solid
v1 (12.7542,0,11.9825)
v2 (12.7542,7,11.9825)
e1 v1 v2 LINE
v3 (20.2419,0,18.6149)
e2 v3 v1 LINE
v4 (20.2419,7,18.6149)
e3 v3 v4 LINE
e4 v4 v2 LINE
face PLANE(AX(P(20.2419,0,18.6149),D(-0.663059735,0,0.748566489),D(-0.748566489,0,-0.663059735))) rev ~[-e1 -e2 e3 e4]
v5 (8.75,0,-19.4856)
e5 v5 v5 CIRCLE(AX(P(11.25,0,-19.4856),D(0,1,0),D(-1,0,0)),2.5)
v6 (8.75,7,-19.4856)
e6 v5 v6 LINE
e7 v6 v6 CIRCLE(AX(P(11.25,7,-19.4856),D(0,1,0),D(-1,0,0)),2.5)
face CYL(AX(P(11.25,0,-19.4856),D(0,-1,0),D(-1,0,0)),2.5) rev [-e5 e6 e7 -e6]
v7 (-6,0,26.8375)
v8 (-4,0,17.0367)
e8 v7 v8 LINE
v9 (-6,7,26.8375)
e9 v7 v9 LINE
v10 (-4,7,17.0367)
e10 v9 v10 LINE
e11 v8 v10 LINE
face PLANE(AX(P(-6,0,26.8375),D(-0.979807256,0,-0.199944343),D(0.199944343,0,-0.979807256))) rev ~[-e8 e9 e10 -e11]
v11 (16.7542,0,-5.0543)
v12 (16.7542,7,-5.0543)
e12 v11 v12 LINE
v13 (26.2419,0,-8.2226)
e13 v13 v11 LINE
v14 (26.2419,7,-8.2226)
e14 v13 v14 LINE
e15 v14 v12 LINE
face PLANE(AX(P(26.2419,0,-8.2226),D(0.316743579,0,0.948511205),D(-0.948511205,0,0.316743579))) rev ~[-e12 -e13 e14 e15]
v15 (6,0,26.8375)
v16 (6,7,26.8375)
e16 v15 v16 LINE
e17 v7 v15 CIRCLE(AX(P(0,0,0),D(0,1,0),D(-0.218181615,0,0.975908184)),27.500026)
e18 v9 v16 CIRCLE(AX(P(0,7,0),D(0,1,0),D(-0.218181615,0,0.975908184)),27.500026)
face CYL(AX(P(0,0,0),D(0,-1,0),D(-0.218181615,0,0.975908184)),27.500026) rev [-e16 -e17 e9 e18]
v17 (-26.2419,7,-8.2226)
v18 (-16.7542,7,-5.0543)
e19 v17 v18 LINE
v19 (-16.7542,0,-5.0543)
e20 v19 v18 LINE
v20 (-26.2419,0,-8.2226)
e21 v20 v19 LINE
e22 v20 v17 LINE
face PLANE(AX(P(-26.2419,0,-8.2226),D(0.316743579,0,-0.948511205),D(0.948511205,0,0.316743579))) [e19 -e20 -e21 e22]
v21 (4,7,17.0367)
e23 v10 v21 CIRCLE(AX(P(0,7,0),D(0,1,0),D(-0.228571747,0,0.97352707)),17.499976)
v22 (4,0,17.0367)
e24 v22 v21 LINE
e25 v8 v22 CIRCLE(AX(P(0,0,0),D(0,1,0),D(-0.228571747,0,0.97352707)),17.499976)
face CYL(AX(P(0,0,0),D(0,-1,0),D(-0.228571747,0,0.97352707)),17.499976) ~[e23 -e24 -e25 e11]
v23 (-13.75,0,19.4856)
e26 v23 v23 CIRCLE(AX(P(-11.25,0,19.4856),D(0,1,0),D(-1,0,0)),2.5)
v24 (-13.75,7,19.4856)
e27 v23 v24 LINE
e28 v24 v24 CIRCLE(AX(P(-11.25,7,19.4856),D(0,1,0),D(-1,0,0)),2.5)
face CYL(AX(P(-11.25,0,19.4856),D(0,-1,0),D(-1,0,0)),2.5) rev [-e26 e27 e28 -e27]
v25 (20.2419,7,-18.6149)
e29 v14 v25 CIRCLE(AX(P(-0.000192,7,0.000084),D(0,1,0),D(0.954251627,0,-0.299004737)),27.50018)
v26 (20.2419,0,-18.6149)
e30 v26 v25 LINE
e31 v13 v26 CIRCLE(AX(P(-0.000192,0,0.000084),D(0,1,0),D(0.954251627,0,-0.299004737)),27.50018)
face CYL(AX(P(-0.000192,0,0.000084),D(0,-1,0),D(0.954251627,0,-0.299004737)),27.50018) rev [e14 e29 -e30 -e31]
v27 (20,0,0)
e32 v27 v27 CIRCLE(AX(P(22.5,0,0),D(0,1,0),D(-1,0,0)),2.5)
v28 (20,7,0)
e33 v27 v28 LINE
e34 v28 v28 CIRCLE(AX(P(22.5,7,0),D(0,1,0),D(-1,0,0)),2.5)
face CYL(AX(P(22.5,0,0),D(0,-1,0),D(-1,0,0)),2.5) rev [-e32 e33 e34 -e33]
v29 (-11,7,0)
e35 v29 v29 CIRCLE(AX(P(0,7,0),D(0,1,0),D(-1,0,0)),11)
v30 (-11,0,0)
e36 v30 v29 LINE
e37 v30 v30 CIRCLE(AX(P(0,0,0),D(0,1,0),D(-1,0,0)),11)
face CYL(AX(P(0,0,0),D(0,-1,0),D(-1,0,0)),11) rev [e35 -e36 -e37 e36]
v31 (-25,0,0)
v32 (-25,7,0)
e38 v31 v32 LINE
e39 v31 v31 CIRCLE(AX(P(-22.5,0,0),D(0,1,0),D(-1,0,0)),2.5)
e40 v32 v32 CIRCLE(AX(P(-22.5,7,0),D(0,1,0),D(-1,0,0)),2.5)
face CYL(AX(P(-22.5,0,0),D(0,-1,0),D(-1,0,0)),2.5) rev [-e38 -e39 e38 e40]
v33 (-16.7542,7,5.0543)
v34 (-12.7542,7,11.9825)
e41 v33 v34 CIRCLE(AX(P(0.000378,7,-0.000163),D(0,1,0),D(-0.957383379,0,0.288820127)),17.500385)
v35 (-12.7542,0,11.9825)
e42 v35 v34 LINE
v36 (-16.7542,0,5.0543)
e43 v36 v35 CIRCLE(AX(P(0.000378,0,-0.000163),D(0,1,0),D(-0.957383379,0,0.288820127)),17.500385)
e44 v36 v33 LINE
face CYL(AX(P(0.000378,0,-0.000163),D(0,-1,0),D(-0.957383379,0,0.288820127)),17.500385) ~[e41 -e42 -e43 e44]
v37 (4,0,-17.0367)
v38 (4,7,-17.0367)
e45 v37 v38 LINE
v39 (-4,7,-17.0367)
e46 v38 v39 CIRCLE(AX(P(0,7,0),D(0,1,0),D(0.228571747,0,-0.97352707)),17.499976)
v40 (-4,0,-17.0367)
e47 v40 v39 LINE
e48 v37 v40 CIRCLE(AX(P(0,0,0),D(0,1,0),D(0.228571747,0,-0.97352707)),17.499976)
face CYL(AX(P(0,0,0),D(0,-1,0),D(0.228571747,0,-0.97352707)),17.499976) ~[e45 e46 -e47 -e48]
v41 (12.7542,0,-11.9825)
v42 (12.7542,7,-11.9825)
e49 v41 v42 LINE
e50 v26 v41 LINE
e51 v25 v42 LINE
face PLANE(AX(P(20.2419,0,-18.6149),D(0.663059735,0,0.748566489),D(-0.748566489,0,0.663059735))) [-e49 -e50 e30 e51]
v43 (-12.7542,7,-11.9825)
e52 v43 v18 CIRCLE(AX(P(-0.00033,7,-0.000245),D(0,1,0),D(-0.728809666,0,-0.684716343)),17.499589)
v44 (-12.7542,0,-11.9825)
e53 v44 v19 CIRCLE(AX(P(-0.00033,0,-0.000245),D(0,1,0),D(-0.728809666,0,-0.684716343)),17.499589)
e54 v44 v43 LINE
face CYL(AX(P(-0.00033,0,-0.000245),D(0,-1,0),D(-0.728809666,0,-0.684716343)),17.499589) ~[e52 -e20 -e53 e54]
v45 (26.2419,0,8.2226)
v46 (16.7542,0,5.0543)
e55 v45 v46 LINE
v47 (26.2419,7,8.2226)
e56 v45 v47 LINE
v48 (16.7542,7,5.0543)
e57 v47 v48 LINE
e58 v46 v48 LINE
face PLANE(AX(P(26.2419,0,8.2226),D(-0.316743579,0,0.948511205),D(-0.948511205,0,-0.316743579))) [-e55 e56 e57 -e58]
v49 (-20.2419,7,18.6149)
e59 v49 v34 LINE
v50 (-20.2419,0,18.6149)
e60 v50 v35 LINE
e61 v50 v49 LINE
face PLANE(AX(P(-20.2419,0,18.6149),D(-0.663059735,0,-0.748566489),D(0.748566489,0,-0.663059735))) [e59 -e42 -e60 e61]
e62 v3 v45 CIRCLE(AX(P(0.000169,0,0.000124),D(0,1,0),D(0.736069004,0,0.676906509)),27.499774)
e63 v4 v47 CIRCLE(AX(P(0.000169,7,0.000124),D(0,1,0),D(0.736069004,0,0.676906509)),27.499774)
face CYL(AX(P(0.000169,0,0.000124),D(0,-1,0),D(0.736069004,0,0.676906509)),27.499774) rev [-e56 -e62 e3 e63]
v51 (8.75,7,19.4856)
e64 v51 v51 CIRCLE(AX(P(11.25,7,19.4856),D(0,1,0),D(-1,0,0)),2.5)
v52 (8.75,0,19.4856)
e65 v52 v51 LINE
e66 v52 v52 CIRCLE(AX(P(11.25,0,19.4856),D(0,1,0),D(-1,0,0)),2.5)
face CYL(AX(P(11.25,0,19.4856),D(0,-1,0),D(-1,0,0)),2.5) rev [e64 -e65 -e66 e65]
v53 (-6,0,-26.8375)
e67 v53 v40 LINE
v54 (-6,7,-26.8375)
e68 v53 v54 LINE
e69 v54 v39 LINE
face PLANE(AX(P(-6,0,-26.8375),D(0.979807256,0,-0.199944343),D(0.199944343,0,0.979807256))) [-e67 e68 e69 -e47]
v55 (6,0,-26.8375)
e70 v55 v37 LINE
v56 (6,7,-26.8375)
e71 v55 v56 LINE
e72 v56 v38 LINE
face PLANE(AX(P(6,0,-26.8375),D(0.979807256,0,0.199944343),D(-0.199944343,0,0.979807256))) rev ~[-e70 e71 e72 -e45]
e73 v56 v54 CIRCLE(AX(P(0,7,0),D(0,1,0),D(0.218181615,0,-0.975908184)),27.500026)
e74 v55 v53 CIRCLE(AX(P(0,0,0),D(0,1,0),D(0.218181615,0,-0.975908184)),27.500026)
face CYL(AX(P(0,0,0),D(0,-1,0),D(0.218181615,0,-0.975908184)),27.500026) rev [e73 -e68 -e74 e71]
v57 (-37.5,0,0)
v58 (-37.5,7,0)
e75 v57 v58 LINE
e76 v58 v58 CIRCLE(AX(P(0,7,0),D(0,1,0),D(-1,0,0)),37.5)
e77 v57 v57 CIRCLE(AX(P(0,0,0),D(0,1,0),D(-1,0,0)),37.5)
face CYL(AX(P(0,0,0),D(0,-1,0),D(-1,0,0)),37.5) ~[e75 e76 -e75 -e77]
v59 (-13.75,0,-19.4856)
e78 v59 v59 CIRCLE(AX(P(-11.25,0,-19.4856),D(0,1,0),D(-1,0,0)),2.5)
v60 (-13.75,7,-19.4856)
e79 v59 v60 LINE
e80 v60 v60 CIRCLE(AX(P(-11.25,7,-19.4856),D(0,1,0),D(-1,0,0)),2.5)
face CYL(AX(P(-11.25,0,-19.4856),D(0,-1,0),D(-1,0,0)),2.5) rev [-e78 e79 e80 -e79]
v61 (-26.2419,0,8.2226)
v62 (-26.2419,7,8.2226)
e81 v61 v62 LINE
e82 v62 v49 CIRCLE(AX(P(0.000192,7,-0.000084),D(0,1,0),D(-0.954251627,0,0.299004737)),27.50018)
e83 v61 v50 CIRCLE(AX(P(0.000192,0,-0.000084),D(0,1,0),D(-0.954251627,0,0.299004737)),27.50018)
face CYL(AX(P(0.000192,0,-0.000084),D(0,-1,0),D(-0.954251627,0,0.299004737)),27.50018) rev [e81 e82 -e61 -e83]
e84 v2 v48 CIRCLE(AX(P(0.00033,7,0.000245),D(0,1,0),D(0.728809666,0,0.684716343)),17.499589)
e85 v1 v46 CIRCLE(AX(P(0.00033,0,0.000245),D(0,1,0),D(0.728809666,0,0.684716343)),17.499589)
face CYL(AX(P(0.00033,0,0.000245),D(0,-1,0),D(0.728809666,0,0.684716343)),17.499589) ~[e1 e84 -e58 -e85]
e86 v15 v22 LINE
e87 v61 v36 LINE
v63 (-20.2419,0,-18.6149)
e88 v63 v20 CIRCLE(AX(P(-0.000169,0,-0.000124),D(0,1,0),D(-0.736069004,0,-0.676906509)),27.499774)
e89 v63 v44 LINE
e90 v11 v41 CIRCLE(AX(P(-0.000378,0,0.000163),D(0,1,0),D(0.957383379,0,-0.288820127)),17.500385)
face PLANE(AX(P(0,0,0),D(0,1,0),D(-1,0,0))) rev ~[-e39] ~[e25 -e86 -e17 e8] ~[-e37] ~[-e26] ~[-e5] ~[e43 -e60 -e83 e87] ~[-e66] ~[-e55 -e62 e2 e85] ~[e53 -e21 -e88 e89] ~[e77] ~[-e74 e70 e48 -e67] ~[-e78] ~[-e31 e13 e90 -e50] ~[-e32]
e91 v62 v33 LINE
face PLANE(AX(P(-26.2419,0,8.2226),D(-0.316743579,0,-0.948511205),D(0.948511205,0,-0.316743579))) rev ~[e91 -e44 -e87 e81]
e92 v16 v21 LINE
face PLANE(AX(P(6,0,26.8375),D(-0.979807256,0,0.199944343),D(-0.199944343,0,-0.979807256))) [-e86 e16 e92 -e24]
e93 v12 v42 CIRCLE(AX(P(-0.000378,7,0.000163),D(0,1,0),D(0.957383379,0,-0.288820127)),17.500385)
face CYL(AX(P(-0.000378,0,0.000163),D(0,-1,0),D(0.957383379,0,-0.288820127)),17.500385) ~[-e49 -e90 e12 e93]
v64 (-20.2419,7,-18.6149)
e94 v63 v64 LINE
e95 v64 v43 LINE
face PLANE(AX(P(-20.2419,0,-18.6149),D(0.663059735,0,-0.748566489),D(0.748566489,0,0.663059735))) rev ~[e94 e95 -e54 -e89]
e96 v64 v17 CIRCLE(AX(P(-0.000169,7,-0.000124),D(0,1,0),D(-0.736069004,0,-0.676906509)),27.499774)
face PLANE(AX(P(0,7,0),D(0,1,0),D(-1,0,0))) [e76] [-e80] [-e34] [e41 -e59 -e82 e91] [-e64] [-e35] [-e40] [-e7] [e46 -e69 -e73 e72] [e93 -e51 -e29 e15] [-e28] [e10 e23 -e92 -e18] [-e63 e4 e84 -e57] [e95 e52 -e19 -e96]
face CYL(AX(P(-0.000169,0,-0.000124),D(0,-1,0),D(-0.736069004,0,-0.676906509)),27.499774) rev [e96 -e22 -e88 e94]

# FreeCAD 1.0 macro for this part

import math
import FreeCAD as App
import Part
import Sketcher

doc = App.newDocument("Part")
body = doc.addObject("PartDesign::Body", "Body")

# Sketch on XZ plane
sketch1 = body.newObject("Sketcher::SketchObject", "Sketch")
sketch1.AttachmentSupport = (doc.getObject("XZ_Plane"), [""])
sketch1.MapMode = "FlatFace"
sketch1.addGeometry([
    Part.Circle(App.Vector(0, 0, 0), App.Vector(0, 0, 1), 37.5),  # 0
    Part.Circle(App.Vector(11.25, -19.4856, 0), App.Vector(0, 0, 1), 2.5),  # 1
    Part.ArcOfCircle(Part.Circle(App.Vector(0, 0, 0), App.Vector(0, 0, 1), 27.500026), math.radians(-42.602329), math.radians(-17.397787)),  # 2
    Part.LineSegment(App.Vector(26.2419, -8.2226, 0), App.Vector(16.7542, -5.0543, 0)),  # 3
    Part.ArcOfCircle(Part.Circle(App.Vector(0, 0, 0), App.Vector(0, 0, 1), 17.5), math.radians(-43.213148), math.radians(-16.787177)),  # 4
    Part.LineSegment(App.Vector(12.7542, -11.9825, 0), App.Vector(20.2419, -18.6149, 0)),  # 5
    Part.ArcOfCircle(Part.Circle(App.Vector(0, 0, 0), App.Vector(0, 0, 1), 27.500026), math.radians(-102.602253), math.radians(-77.397747)),  # 6
    Part.LineSegment(App.Vector(6, -26.8375, 0), App.Vector(4, -17.0367, 0)),  # 7
    Part.ArcOfCircle(Part.Circle(App.Vector(0, 0, 0), App.Vector(0, 0, 1), 17.499976), math.radians(-103.212999), math.radians(-76.787001)),  # 8
    Part.LineSegment(App.Vector(-4, -17.0367, 0), App.Vector(-6, -26.8375, 0)),  # 9
    Part.Circle(App.Vector(-11.25, -19.4856, 0), App.Vector(0, 0, 1), 2.5),  # 10
    Part.ArcOfCircle(Part.Circle(App.Vector(0, 0, 0), App.Vector(0, 0, 1), 27.499972), math.radians(-162.602213), math.radians(-137.397671)),  # 11
    Part.LineSegment(App.Vector(-20.2419, -18.6149, 0), App.Vector(-12.7542, -11.9825, 0)),  # 12
    Part.ArcOfCircle(Part.Circle(App.Vector(0, 0, 0), App.Vector(0, 0, 1), 17.499976), math.radians(-163.212823), math.radians(-136.786852)),  # 13
    Part.LineSegment(App.Vector(-16.7542, -5.0543, 0), App.Vector(-26.2419, -8.2226, 0)),  # 14
    Part.Circle(App.Vector(22.5, 0, 0), App.Vector(0, 0, 1), 2.5),  # 15
    Part.ArcOfCircle(Part.Circle(App.Vector(0, 0, 0), App.Vector(0, 0, 1), 27.499972), math.radians(17.397787), math.radians(42.602329)),  # 16
    Part.LineSegment(App.Vector(20.2419, 18.6149, 0), App.Vector(12.7542, 11.9825, 0)),  # 17
    Part.ArcOfCircle(Part.Circle(App.Vector(0, 0, 0), App.Vector(0, 0, 1), 17.499976), math.radians(16.787177), math.radians(43.213148)),  # 18
    Part.LineSegment(App.Vector(16.7542, 5.0543, 0), App.Vector(26.2419, 8.2226, 0)),  # 19
    Part.Circle(App.Vector(11.25, 19.4856, 0), App.Vector(0, 0, 1), 2.5),  # 20
    Part.Circle(App.Vector(0, 0, 0), App.Vector(0, 0, 1), 11),  # 21
    Part.Circle(App.Vector(-22.5, 0, 0), App.Vector(0, 0, 1), 2.5),  # 22
    Part.ArcOfCircle(Part.Circle(App.Vector(0, 0, 0), App.Vector(0, 0, 1), 27.500026), math.radians(137.397671), math.radians(162.602213)),  # 23
    Part.LineSegment(App.Vector(-26.2419, 8.2226, 0), App.Vector(-16.7542, 5.0543, 0)),  # 24
    Part.ArcOfCircle(Part.Circle(App.Vector(0, 0, 0), App.Vector(0, 0, 1), 17.5), math.radians(136.786852), math.radians(163.212823)),  # 25
    Part.LineSegment(App.Vector(-12.7542, 11.9825, 0), App.Vector(-20.2419, 18.6149, 0)),  # 26
    Part.LineSegment(App.Vector(4, 17.0367, 0), App.Vector(6, 26.8375, 0)),  # 27
    Part.ArcOfCircle(Part.Circle(App.Vector(0, 0, 0), App.Vector(0, 0, 1), 27.500026), math.radians(77.397747), math.radians(102.602253)),  # 28
    Part.LineSegment(App.Vector(-6, 26.8375, 0), App.Vector(-4, 17.0367, 0)),  # 29
    Part.ArcOfCircle(Part.Circle(App.Vector(0, 0, 0), App.Vector(0, 0, 1), 17.499976), math.radians(76.787001), math.radians(103.212999)),  # 30
    Part.Circle(App.Vector(-11.25, 19.4856, 0), App.Vector(0, 0, 1), 2.5),  # 31
], False)
sketch1.addConstraint([
    Sketcher.Constraint("Coincident", 2, 2, 3, 1),
    Sketcher.Constraint("Coincident", 3, 2, 4, 2),
    Sketcher.Constraint("Coincident", 4, 1, 5, 1),
    Sketcher.Constraint("Coincident", 5, 2, 2, 1),
    Sketcher.Constraint("Coincident", 6, 2, 7, 1),
    Sketcher.Constraint("Coincident", 7, 2, 8, 2),
    Sketcher.Constraint("Coincident", 8, 1, 9, 1),
    Sketcher.Constraint("Coincident", 9, 2, 6, 1),
    Sketcher.Constraint("Coincident", 11, 2, 12, 1),
    Sketcher.Constraint("Coincident", 12, 2, 13, 2),
    Sketcher.Constraint("Coincident", 13, 1, 14, 1),
    Sketcher.Constraint("Coincident", 14, 2, 11, 1),
    Sketcher.Constraint("Coincident", 16, 2, 17, 1),
    Sketcher.Constraint("Coincident", 17, 2, 18, 2),
    Sketcher.Constraint("Coincident", 18, 1, 19, 1),
    Sketcher.Constraint("Coincident", 19, 2, 16, 1),
    Sketcher.Constraint("Coincident", 23, 2, 24, 1),
    Sketcher.Constraint("Coincident", 24, 2, 25, 2),
    Sketcher.Constraint("Coincident", 25, 1, 26, 1),
    Sketcher.Constraint("Coincident", 26, 2, 23, 1),
    Sketcher.Constraint("Coincident", 27, 2, 28, 1),
    Sketcher.Constraint("Coincident", 28, 2, 29, 1),
    Sketcher.Constraint("Coincident", 29, 2, 30, 2),
    Sketcher.Constraint("Coincident", 30, 1, 27, 1),
    Sketcher.Constraint("Coincident", 0, 3, -1, 1),
    Sketcher.Constraint("Coincident", 2, 3, -1, 1),
    Sketcher.Constraint("Coincident", 4, 3, -1, 1),
    Sketcher.Constraint("Coincident", 6, 3, -1, 1),
    Sketcher.Constraint("Coincident", 8, 3, -1, 1),
    Sketcher.Constraint("Coincident", 11, 3, -1, 1),
    Sketcher.Constraint("Coincident", 13, 3, -1, 1),
    Sketcher.Constraint("Coincident", 16, 3, -1, 1),
    Sketcher.Constraint("Coincident", 18, 3, -1, 1),
    Sketcher.Constraint("Coincident", 21, 3, -1, 1),
    Sketcher.Constraint("Coincident", 23, 3, -1, 1),
    Sketcher.Constraint("Coincident", 25, 3, -1, 1),
    Sketcher.Constraint("Coincident", 28, 3, -1, 1),
    Sketcher.Constraint("Coincident", 30, 3, -1, 1),
    Sketcher.Constraint("Equal", 2, 6),
    Sketcher.Constraint("Equal", 4, 8),
    Sketcher.Constraint("Equal", 1, 10),
    Sketcher.Constraint("Equal", 6, 11),
    Sketcher.Constraint("Equal", 8, 13),
    Sketcher.Constraint("Equal", 10, 15),
    Sketcher.Constraint("Equal", 11, 16),
    Sketcher.Constraint("Equal", 13, 18),
    Sketcher.Constraint("Equal", 15, 20),
    Sketcher.Constraint("Equal", 20, 22),
    Sketcher.Constraint("Equal", 16, 23),
    Sketcher.Constraint("Equal", 18, 25),
    Sketcher.Constraint("Equal", 23, 28),
    Sketcher.Constraint("Equal", 25, 30),
    Sketcher.Constraint("Equal", 22, 31),
    Sketcher.Constraint("Symmetric", 10, 3, 20, 3, -1, 1),
    Sketcher.Constraint("Symmetric", 15, 3, 22, 3, -1, 1),
    Sketcher.Constraint("Symmetric", 1, 3, 31, 3, -1, 1),
    Sketcher.Constraint("Symmetric", 1, 3, 10, 3, -2),
    Sketcher.Constraint("PointOnObject", 15, 3, -1),
    Sketcher.Constraint("Parallel", 12, 17),
    Sketcher.Constraint("Parallel", 14, 19),
    Sketcher.Constraint("Parallel", 3, 24),
    Sketcher.Constraint("Parallel", 5, 26),
    Sketcher.Constraint("Parallel", 9, 27),
    Sketcher.Constraint("Parallel", 7, 29),
    Sketcher.Constraint("Horizontal", 7, 2, 8, 1),
    Sketcher.Constraint("Horizontal", 6, 2, 9, 2),
    Sketcher.Constraint("Horizontal", 5, 2, 11, 2),
    Sketcher.Constraint("Horizontal", 4, 1, 12, 2),
    Sketcher.Constraint("Horizontal", 3, 2, 13, 1),
    Sketcher.Constraint("Horizontal", 2, 2, 14, 2),
    Sketcher.Constraint("Horizontal", 19, 2, 23, 2),
    Sketcher.Constraint("Horizontal", 17, 2, 25, 1),
    Sketcher.Constraint("Horizontal", 27, 2, 28, 2),
    Sketcher.Constraint("Vertical", 5, 2, 16, 2),
    Sketcher.Constraint("Vertical", 3, 2, 18, 1),
    Sketcher.Constraint("Vertical", 6, 2, 27, 2),
    Sketcher.Constraint("Equal", 3, 5),
    Sketcher.Constraint("Equal", 5, 7),
    Sketcher.Constraint("Diameter", 0, 75.0),
    Sketcher.Constraint("Diameter", 1, 5.0),
    Sketcher.Constraint("Diameter", 21, 22.0),
    Sketcher.Constraint("Radius", 2, 27.5),
    Sketcher.Constraint("Radius", 4, 17.5),
    Sketcher.Constraint("DistanceX", -1, 1, 6, 2, 6.0),
    Sketcher.Constraint("DistanceX", -1, 1, 7, 2, 4.0),
    Sketcher.Constraint("DistanceX", 4, 1, 3, 2, 4.0),
    Sketcher.Constraint("DistanceX", -1, 1, 15, 3, 22.5),
    Sketcher.Constraint("DistanceX", 10, 3, 1, 3, 22.5),
    Sketcher.Constraint("DistanceY", 4, 1, 2, 2, 3.76),
    Sketcher.Constraint("DistanceY", 1, 3, 2, 2, 11.263),
])
pad1 = body.newObject("PartDesign::Pad", "Pad")
pad1.Profile = sketch1
pad1.Length = 7
pad1.Reversed = True

doc.recompute()
